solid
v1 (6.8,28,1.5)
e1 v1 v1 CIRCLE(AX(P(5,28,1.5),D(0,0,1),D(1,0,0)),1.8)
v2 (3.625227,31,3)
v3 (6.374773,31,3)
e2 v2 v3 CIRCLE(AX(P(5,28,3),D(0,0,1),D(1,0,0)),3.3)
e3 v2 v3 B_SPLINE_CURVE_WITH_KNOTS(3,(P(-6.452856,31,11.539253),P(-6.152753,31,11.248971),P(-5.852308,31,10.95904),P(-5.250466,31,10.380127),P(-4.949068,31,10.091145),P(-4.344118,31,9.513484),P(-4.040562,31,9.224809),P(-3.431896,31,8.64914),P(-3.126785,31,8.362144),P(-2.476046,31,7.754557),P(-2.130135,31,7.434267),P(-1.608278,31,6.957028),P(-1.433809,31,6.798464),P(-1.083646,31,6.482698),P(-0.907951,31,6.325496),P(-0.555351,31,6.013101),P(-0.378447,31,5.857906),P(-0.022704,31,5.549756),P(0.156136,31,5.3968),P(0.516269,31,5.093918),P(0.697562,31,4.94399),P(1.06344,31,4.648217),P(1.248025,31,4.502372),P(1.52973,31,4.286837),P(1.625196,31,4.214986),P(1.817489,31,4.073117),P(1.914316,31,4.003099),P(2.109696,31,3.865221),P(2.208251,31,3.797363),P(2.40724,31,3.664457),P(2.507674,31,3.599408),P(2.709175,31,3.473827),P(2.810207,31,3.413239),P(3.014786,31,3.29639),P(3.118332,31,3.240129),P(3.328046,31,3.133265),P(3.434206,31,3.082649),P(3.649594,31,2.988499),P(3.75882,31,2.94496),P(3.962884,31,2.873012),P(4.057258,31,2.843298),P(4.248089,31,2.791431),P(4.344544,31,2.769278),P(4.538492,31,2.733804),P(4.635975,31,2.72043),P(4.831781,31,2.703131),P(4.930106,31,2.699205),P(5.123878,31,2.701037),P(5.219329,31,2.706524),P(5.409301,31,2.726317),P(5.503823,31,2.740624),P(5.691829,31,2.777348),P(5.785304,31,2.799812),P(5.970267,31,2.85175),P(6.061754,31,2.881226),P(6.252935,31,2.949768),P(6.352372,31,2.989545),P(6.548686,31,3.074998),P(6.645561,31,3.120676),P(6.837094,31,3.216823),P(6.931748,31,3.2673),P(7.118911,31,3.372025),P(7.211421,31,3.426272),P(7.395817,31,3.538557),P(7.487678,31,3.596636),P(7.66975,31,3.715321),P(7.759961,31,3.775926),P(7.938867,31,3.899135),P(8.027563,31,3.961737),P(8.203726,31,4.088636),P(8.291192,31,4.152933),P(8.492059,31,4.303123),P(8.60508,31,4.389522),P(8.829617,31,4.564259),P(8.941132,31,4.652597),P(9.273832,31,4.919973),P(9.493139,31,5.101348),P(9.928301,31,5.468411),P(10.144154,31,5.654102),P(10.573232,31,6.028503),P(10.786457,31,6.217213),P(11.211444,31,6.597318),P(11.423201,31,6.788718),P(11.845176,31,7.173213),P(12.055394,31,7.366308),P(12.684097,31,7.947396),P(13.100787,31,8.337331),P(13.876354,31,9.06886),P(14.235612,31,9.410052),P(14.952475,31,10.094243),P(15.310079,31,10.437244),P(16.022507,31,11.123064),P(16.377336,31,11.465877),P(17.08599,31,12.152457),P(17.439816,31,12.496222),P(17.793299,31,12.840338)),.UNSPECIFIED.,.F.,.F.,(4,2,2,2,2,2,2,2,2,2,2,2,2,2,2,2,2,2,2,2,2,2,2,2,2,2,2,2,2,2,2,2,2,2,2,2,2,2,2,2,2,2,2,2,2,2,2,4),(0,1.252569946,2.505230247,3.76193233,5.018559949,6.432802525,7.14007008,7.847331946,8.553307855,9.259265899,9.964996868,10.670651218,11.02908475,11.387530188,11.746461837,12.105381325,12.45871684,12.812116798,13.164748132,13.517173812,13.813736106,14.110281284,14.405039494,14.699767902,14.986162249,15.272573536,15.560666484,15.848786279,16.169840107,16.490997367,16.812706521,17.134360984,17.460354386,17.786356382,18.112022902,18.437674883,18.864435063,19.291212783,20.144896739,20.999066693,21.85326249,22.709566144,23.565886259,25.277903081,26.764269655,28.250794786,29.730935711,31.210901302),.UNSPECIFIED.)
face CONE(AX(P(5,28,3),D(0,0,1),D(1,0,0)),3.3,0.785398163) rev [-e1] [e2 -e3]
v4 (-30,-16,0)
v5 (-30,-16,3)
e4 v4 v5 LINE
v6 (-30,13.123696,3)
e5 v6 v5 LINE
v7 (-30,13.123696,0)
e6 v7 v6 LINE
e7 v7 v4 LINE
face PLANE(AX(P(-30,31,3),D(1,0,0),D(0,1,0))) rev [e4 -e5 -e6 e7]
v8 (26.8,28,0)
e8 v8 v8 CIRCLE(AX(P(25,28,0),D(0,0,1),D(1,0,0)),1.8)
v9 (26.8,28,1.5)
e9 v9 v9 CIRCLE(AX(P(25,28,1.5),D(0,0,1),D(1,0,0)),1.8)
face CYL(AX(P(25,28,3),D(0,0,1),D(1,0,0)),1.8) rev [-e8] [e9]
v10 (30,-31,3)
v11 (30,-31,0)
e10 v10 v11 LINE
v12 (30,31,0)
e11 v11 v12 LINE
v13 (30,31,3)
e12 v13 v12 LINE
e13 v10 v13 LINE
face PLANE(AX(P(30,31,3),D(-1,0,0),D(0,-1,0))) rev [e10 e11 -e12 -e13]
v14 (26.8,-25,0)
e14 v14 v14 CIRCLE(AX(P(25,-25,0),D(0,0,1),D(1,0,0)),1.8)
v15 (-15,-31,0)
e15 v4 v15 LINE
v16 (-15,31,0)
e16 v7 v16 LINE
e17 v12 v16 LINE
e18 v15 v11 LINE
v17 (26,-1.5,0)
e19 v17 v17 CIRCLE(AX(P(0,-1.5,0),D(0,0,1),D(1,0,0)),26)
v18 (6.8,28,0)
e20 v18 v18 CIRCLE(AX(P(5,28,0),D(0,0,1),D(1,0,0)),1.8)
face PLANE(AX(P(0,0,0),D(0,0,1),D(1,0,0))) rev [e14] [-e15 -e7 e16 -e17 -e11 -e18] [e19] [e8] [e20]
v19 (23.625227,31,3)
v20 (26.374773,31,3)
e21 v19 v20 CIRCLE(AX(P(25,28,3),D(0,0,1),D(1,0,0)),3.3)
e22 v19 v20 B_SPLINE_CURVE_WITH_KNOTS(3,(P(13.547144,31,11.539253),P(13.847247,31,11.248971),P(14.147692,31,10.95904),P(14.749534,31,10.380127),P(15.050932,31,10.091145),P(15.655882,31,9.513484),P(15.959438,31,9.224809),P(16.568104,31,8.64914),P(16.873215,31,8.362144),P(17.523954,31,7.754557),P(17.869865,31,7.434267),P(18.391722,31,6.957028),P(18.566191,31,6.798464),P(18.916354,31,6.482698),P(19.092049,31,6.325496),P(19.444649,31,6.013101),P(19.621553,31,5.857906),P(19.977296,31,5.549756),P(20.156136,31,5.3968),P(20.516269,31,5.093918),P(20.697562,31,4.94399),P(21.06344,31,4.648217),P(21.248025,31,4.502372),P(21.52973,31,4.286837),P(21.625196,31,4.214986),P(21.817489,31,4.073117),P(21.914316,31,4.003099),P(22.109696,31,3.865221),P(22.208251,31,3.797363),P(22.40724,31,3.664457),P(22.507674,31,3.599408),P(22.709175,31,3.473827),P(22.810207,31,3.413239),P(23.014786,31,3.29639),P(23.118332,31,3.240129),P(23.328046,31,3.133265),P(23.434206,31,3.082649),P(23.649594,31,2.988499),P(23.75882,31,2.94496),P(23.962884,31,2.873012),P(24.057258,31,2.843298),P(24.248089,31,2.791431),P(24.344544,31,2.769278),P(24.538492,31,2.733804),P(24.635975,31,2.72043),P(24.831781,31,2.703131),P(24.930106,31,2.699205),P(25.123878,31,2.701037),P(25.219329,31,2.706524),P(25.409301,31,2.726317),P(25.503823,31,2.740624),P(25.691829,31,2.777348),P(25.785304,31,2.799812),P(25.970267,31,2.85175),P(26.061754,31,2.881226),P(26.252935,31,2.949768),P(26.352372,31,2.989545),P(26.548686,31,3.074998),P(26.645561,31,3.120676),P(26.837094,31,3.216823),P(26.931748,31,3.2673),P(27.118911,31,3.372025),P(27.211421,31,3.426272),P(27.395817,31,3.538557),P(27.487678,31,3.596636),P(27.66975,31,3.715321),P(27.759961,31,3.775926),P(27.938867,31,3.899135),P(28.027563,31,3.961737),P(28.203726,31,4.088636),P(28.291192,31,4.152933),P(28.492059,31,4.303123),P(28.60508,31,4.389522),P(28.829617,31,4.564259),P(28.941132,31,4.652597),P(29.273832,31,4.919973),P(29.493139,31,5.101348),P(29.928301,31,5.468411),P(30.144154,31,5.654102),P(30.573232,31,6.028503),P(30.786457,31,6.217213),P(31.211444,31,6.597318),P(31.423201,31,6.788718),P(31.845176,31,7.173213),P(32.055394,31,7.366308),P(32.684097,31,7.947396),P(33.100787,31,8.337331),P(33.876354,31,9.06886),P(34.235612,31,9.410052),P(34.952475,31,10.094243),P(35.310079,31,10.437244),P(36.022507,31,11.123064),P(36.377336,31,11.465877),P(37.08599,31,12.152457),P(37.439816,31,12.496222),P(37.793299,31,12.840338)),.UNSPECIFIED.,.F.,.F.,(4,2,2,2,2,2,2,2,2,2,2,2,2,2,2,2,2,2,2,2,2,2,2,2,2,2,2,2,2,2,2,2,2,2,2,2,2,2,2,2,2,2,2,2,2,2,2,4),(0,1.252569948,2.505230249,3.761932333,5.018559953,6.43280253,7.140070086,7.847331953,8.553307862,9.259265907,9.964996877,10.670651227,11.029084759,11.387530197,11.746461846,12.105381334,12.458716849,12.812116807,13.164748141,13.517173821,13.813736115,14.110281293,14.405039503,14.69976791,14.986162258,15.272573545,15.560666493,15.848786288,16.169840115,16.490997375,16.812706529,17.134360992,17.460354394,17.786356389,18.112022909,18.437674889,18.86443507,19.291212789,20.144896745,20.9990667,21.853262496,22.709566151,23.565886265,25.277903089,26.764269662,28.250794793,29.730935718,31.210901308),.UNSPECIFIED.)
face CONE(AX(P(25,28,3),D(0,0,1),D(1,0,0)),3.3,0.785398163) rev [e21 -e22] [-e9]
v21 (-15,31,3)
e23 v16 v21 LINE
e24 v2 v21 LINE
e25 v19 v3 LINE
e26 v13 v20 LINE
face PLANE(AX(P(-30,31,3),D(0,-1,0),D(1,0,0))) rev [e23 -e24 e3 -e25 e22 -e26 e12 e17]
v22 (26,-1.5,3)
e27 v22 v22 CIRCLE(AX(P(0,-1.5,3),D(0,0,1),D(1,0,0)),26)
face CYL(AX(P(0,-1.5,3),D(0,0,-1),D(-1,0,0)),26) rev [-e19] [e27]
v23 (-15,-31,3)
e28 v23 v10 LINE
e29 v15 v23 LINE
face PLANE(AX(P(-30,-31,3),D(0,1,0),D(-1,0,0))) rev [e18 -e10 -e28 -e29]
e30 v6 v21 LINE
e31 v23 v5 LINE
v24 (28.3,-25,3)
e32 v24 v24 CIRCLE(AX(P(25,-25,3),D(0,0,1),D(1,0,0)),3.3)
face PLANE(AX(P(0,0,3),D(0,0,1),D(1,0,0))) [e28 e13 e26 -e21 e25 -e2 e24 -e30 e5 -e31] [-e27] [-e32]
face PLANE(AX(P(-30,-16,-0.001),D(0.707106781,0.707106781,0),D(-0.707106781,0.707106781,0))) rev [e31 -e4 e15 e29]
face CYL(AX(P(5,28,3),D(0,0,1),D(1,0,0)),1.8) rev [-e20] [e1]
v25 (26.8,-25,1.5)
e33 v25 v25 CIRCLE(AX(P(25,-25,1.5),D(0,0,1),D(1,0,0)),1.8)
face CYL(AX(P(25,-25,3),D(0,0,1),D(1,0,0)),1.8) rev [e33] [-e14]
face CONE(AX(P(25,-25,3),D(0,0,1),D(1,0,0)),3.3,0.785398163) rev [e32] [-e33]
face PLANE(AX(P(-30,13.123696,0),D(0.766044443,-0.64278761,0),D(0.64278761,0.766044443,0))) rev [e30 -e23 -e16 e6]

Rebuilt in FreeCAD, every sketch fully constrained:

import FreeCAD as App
import Part
import Sketcher

V = App.Vector
Q = App.Units.Quantity


def add_polygon(sketch, points):
    """Adds a closed chain of lines whose ends are joined by coincident constraints."""
    first, n = sketch.GeometryCount, len(points)
    for a, b in zip(points, points[1:] + points[:1]):
        sketch.addGeometry(Part.LineSegment(App.Vector(*a, 0), App.Vector(*b, 0)), False)
    for i in range(n):
        sketch.addConstraint(Sketcher.Constraint("Coincident", first + i, 2, first + (i + 1) % n, 1))

doc = App.newDocument("Part")
params = doc.addObject("Spreadsheet::Sheet", "Params")
for row, (alias, value) in enumerate([
    ("sketch1_diameter", "52 mm"),
    ("sketch1_diameter2", "3.2 mm"),
    ("sketch1_width", "60 mm"),
    ("sketch1_height", "62 mm"),
    ("pad1_length", "3 mm"),
    ("sketch2_width", "15 mm"),
    ("sketch3_width", "15 mm"),
    ("sketch4_diameter", "3.2 mm"),
    ("sketch5_height", "3 mm"),
    ("sketch5_width", "3.3 mm"),
    ("sketch5_width2", "1.8 mm"),
    ("groove_angle", "360 deg"),
    ("linearpattern_pitch", "20 mm"),
    ("linearpattern2_pitch", "56.648036 mm"),
], start=1):
    params.set(f"A{row}", alias)
    params.set(f"B{row}", "=" + value)
    params.setAlias(f"B{row}", alias)

body = doc.addObject("PartDesign::Body", "Body")

sketch1 = doc.addObject("Sketcher::SketchObject", "Sketch")
body.addObject(sketch1)
sketch1.AttachmentSupport = (doc.XY_Plane, [""])
sketch1.MapMode = "FlatFace"
add_polygon(sketch1, [(-30, 31), (-30, -31), (30, -31), (30, 31)])
sketch1.addGeometry(Part.Circle(V(0, -1.5, 0), V(0, 0, 1), 26), False)
sketch1.addGeometry(Part.Circle(V(5, 28, 0), V(0, 0, 1), 1.6), False)
sketch1.addGeometry(Part.Circle(V(25, 28, 0), V(0, 0, 1), 1.6), False)
sketch1.addConstraint(Sketcher.Constraint("Vertical", 0))
sketch1.addConstraint(Sketcher.Constraint("Horizontal", 1))
sketch1.addConstraint(Sketcher.Constraint("Vertical", 2))
sketch1.addConstraint(Sketcher.Constraint("Horizontal", 3))
sketch1.addConstraint(Sketcher.Constraint("Equal", 5, 6))
sketch1.addConstraint(Sketcher.Constraint("Symmetric", 0, 2, 2, 2, -1, 1))
sketch1.addConstraint(Sketcher.Constraint("PointOnObject", 4, 3, -2))
sketch1.addConstraint(Sketcher.Constraint("Horizontal", 5, 3, 6, 3))
sketch1.addConstraint(Sketcher.Constraint("Diameter", 4, 52.0))
sketch1.addConstraint(Sketcher.Constraint("Diameter", 5, 3.2))
sketch1.addConstraint(Sketcher.Constraint("DistanceX", 1, 1, 1, 2, 60.0))
sketch1.addConstraint(Sketcher.Constraint("DistanceY", 0, 2, 0, 1, 62.0))
sketch1.addConstraint(Sketcher.Constraint("DistanceX", -1, 1, 5, 3, 5.0))
sketch1.addConstraint(Sketcher.Constraint("DistanceY", -1, 1, 5, 3, 28.0))
sketch1.addConstraint(Sketcher.Constraint("DistanceX", -1, 1, 6, 3, 25.0))
sketch1.addConstraint(Sketcher.Constraint("DistanceY", 4, 3, -1, 1, 1.5))
sketch1.setExpression("Constraints[12]", "Params.sketch1_diameter")
sketch1.setExpression("Constraints[13]", "Params.sketch1_diameter2")
sketch1.setExpression("Constraints[14]", "Params.sketch1_width")
sketch1.setExpression("Constraints[15]", "Params.sketch1_height")
pad1 = doc.addObject("PartDesign::Pad", "Pad")
body.addObject(pad1)
pad1.Profile = sketch1
pad1.setExpression("Length", "Params.pad1_length")

sketch2 = doc.addObject("Sketcher::SketchObject", "Sketch001")
body.addObject(sketch2)
sketch2.AttachmentSupport = (doc.XY_Plane, [""])
sketch2.MapMode = "FlatFace"
sketch2.AttachmentOffset = App.Placement(V(0, 0, 3), App.Rotation())
add_polygon(sketch2, [(-30, 13.123696), (-15, 31), (-30, 31)])
sketch2.addConstraint(Sketcher.Constraint("Horizontal", 1))
sketch2.addConstraint(Sketcher.Constraint("Vertical", 2))
sketch2.addConstraint(Sketcher.Constraint("DistanceX", 1, 2, 1, 1, 15.0))
sketch2.addConstraint(Sketcher.Constraint("Angle", 0, Q("50 deg")))
sketch2.addConstraint(Sketcher.Constraint("DistanceX", 0, 2, -1, 1, 15.0))
sketch2.addConstraint(Sketcher.Constraint("DistanceY", -1, 1, 0, 2, 31.0))
sketch2.setExpression("Constraints[5]", "Params.sketch2_width")
pocket1 = doc.addObject("PartDesign::Pocket", "Pocket")
body.addObject(pocket1)
pocket1.Profile = sketch2
pocket1.Type = "ThroughAll"

sketch3 = doc.addObject("Sketcher::SketchObject", "Sketch002")
body.addObject(sketch3)
sketch3.AttachmentSupport = (doc.XY_Plane, [""])
sketch3.MapMode = "FlatFace"
sketch3.AttachmentOffset = App.Placement(V(0, 0, 3), App.Rotation())
add_polygon(sketch3, [(-15, -31), (-30, -16), (-30, -31)])
sketch3.addConstraint(Sketcher.Constraint("Vertical", 1))
sketch3.addConstraint(Sketcher.Constraint("Horizontal", 2))
sketch3.addConstraint(Sketcher.Constraint("Equal", 2, 1))
sketch3.addConstraint(Sketcher.Constraint("DistanceX", 2, 1, 2, 2, 15.0))
sketch3.addConstraint(Sketcher.Constraint("DistanceX", 0, 2, -1, 1, 30.0))
sketch3.addConstraint(Sketcher.Constraint("DistanceY", 0, 2, -1, 1, 16.0))
sketch3.setExpression("Constraints[6]", "Params.sketch3_width")
pocket2 = doc.addObject("PartDesign::Pocket", "Pocket001")
body.addObject(pocket2)
pocket2.Profile = sketch3
pocket2.Type = "UpToFirst"

sketch4 = doc.addObject("Sketcher::SketchObject", "Sketch003")
body.addObject(sketch4)
sketch4.AttachmentSupport = (doc.XY_Plane, [""])
sketch4.MapMode = "FlatFace"
sketch4.AttachmentOffset = App.Placement(V(0, 0, 3), App.Rotation())
sketch4.addGeometry(Part.Circle(V(25, -25, 0), V(0, 0, 1), 1.6), False)
sketch4.addConstraint(Sketcher.Constraint("Diameter", 0, 3.2))
sketch4.addConstraint(Sketcher.Constraint("DistanceX", -1, 1, 0, 3, 25.0))
sketch4.addConstraint(Sketcher.Constraint("DistanceY", 0, 3, -1, 1, 25.0))
sketch4.setExpression("Constraints[0]", "Params.sketch4_diameter")
pocket3 = doc.addObject("PartDesign::Pocket", "Pocket002")
body.addObject(pocket3)
pocket3.Profile = sketch4
pocket3.Type = "ThroughAll"

sketch5 = doc.addObject("Sketcher::SketchObject", "Sketch004")
body.addObject(sketch5)
sketch5.AttachmentSupport = (doc.YZ_Plane, [""])
sketch5.MapMode = "FlatFace"
sketch5.AttachmentOffset = App.Placement(V(0, 0, 5), App.Rotation())
add_polygon(sketch5, [(28, 0), (28, 3), (24.7, 3), (26.2, 1.5), (26.2, 0)])
sketch5.addGeometry(Part.LineSegment(V(28, 3, 0), V(28, 0, 0)), True)
sketch5.addConstraint(Sketcher.Constraint("Vertical", 0))
sketch5.addConstraint(Sketcher.Constraint("Horizontal", 1))
sketch5.addConstraint(Sketcher.Constraint("Vertical", 3))
sketch5.addConstraint(Sketcher.Constraint("Horizontal", 4))
sketch5.addConstraint(Sketcher.Constraint("Vertical", 5))
sketch5.addConstraint(Sketcher.Constraint("Coincident", 5, 1, 0, 2))
sketch5.addConstraint(Sketcher.Constraint("PointOnObject", 3, 2, -1))
sketch5.addConstraint(Sketcher.Constraint("PointOnObject", 5, 2, -1))
sketch5.addConstraint(Sketcher.Constraint("DistanceY", 0, 1, 0, 2, 3.0))
sketch5.addConstraint(Sketcher.Constraint("Angle", 2, Q("-45 deg")))
sketch5.addConstraint(Sketcher.Constraint("DistanceX", 1, 2, 1, 1, 3.3))
sketch5.addConstraint(Sketcher.Constraint("DistanceX", 4, 1, 4, 2, 1.8))
sketch5.addConstraint(Sketcher.Constraint("DistanceX", -1, 1, 0, 2, 28.0))
sketch5.setExpression("Constraints[13]", "Params.sketch5_height")
sketch5.setExpression("Constraints[15]", "Params.sketch5_width")
sketch5.setExpression("Constraints[16]", "Params.sketch5_width2")
groove = doc.addObject("PartDesign::Groove", "Groove")
body.addObject(groove)
groove.Profile = sketch5
groove.ReferenceAxis = (sketch5, ["Axis0"])
groove.setExpression("Angle", "Params.groove_angle")
doc.recompute()

linearpattern = doc.addObject("PartDesign::LinearPattern", "LinearPattern")
body.addObject(linearpattern)
linearpattern.Originals = [groove]
linearpattern.Direction = (doc.X_Axis, [""])
linearpattern.Mode = "offset"
linearpattern.setExpression("Offset", "Params.linearpattern_pitch")
linearpattern.Occurrences = 2
body.Tip = linearpattern
doc.recompute()

datumline = doc.addObject("PartDesign::Line", "DatumLine")
body.addObject(datumline)
datumline.Placement = App.Placement(V(0, 0, 0), App.Rotation(V(0, 0, 1), V(0.353057252, -0.935601719, 0)))
linearpattern2 = doc.addObject("PartDesign::LinearPattern", "LinearPattern001")
body.addObject(linearpattern2)
linearpattern2.Originals = [groove]
linearpattern2.Direction = (datumline, [""])
linearpattern2.Mode = "offset"
linearpattern2.setExpression("Offset", "Params.linearpattern2_pitch")
linearpattern2.Occurrences = 2
body.Tip = linearpattern2

doc.recompute()
